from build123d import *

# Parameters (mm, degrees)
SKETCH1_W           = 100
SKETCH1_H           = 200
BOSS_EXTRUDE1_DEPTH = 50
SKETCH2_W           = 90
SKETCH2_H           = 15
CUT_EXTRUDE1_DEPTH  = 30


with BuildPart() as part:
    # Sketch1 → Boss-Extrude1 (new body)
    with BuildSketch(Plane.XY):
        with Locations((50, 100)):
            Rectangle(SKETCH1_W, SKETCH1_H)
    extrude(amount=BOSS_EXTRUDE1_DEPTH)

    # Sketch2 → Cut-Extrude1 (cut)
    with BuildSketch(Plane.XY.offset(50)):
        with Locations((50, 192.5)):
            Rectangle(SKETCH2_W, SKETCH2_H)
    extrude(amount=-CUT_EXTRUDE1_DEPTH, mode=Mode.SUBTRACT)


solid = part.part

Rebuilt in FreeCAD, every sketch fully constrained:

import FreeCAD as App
import Part
import Sketcher

V = App.Vector


def add_polygon(sketch, points):
    """Adds a closed chain of lines whose ends are joined by coincident constraints."""
    first, n = sketch.GeometryCount, len(points)
    for a, b in zip(points, points[1:] + points[:1]):
        sketch.addGeometry(Part.LineSegment(App.Vector(*a, 0), App.Vector(*b, 0)), False)
    for i in range(n):
        sketch.addConstraint(Sketcher.Constraint("Coincident", first + i, 2, first + (i + 1) % n, 1))

doc = App.newDocument("Part")
params = doc.addObject("Spreadsheet::Sheet", "Params")
for row, (alias, value) in enumerate([
    ("sketch1_width", "100 mm"),
    ("sketch1_height", "200 mm"),
    ("pad1_length", "50 mm"),
    ("sketch2_width", "90 mm"),
    ("sketch2_height", "15 mm"),
    ("pocket1_length", "30 mm"),
], start=1):
    params.set(f"A{row}", alias)
    params.set(f"B{row}", "=" + value)
    params.setAlias(f"B{row}", alias)

body = doc.addObject("PartDesign::Body", "Body")

sketch1 = body.newObject("Sketcher::SketchObject", "Sketch")
sketch1.AttachmentSupport = (doc.getObject("XY_Plane"), [""])
sketch1.MapMode = "FlatFace"
add_polygon(sketch1, [(0, 200), (0, 0), (100, 0), (100, 200)])
sketch1.addConstraint([
    Sketcher.Constraint("Vertical", 0),
    Sketcher.Constraint("Horizontal", 1),
    Sketcher.Constraint("Vertical", 2),
    Sketcher.Constraint("Horizontal", 3),
    Sketcher.Constraint("Coincident", 0, 2, -1, 1),
    Sketcher.Constraint("DistanceX", 1, 1, 1, 2, 100.0),
    Sketcher.Constraint("DistanceY", 0, 2, 0, 1, 200.0),
])
sketch1.setExpression("Constraints[9]", "Params.sketch1_width")
sketch1.setExpression("Constraints[10]", "Params.sketch1_height")
pad1 = body.newObject("PartDesign::Pad", "Pad")
pad1.Profile = sketch1
pad1.setExpression("Length", "Params.pad1_length")

sketch2 = body.newObject("Sketcher::SketchObject", "Sketch001")
sketch2.AttachmentSupport = (doc.getObject("XY_Plane"), [""])
sketch2.MapMode = "FlatFace"
sketch2.AttachmentOffset = App.Placement(V(0, 0, 50), App.Rotation())
add_polygon(sketch2, [(5, 200), (5, 185), (95, 185), (95, 200)])
sketch2.addConstraint([
    Sketcher.Constraint("Vertical", 0),
    Sketcher.Constraint("Horizontal", 1),
    Sketcher.Constraint("Vertical", 2),
    Sketcher.Constraint("Horizontal", 3),
    Sketcher.Constraint("DistanceX", 1, 1, 1, 2, 90.0),
    Sketcher.Constraint("DistanceY", 0, 2, 0, 1, 15.0),
    Sketcher.Constraint("DistanceX", -1, 1, 0, 2, 5.0),
    Sketcher.Constraint("DistanceY", -1, 1, 0, 2, 185.0),
])
sketch2.setExpression("Constraints[8]", "Params.sketch2_width")
sketch2.setExpression("Constraints[9]", "Params.sketch2_height")
pocket1 = body.newObject("PartDesign::Pocket", "Pocket")
pocket1.Profile = sketch2
pocket1.setExpression("Length", "Params.pocket1_length")

doc.recompute()
